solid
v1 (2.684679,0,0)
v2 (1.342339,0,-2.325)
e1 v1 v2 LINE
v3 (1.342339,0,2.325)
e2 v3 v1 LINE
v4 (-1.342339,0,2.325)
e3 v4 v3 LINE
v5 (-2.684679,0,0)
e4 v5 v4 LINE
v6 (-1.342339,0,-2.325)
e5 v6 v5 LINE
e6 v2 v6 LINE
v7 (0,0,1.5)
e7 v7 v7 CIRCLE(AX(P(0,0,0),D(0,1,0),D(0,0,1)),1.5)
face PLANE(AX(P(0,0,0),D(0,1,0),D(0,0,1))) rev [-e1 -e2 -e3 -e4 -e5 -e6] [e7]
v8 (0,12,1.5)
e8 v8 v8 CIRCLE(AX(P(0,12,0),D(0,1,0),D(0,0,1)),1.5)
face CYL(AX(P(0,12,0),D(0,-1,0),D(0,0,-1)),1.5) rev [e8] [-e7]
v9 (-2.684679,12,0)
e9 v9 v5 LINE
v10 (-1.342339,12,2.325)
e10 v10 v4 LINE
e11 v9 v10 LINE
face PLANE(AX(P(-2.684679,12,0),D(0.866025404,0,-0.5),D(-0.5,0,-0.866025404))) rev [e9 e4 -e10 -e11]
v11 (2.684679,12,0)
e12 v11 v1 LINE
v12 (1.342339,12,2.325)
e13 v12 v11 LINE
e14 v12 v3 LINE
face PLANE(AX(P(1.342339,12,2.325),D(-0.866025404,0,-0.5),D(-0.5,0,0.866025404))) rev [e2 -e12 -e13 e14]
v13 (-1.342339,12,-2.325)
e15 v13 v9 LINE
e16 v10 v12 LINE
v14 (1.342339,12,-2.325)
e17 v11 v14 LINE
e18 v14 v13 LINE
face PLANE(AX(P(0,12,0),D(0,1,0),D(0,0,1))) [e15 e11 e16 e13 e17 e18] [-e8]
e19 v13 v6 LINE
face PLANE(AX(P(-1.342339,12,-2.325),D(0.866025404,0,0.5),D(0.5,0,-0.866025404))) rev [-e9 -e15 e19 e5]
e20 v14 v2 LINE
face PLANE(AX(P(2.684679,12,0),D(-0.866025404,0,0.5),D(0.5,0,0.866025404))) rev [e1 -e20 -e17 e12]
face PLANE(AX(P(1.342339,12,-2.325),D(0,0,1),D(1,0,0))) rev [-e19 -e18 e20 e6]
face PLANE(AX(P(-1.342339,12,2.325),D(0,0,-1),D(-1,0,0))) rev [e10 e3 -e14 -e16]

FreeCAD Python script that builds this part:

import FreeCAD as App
import Part
import Sketcher

V = App.Vector
Q = App.Units.Quantity

doc = App.newDocument("Part")
body = doc.addObject("PartDesign::Body", "Body")

# Sketch on XZ plane
sketch1 = body.newObject("Sketcher::SketchObject", "Sketch")
sketch1.AttachmentSupport = (doc.getObject("XZ_Plane"), [""])
sketch1.MapMode = "FlatFace"
sketch1.addGeometry(Part.LineSegment(V(2.684679, 0, 0), V(1.342339, -2.325, 0)), False)
sketch1.addGeometry(Part.LineSegment(V(1.342339, -2.325, 0), V(-1.342339, -2.325, 0)), False)
sketch1.addGeometry(Part.LineSegment(V(-1.342339, -2.325, 0), V(-2.684679, 0, 0)), False)
sketch1.addGeometry(Part.LineSegment(V(-2.684679, 0, 0), V(-1.342339, 2.325, 0)), False)
sketch1.addGeometry(Part.LineSegment(V(-1.342339, 2.325, 0), V(1.342339, 2.325, 0)), False)
sketch1.addGeometry(Part.LineSegment(V(1.342339, 2.325, 0), V(2.684679, 0, 0)), False)
sketch1.addGeometry(Part.Circle(V(0, 0, 0), V(0, 0, 1), 1.5), False)
sketch1.addConstraint(Sketcher.Constraint("Coincident", 0, 2, 1, 1))
sketch1.addConstraint(Sketcher.Constraint("Coincident", 1, 2, 2, 1))
sketch1.addConstraint(Sketcher.Constraint("Coincident", 2, 2, 3, 1))
sketch1.addConstraint(Sketcher.Constraint("Coincident", 3, 2, 4, 1))
sketch1.addConstraint(Sketcher.Constraint("Coincident", 4, 2, 5, 1))
sketch1.addConstraint(Sketcher.Constraint("Coincident", 5, 2, 0, 1))
sketch1.addConstraint(Sketcher.Constraint("Horizontal", 1))
sketch1.addConstraint(Sketcher.Constraint("Horizontal", 4))
sketch1.addConstraint(Sketcher.Constraint("Coincident", 6, 3, -1, 1))
sketch1.addConstraint(Sketcher.Constraint("Symmetric", 0, 2, 3, 2, -1, 1))
sketch1.addConstraint(Sketcher.Constraint("Symmetric", 2, 2, 5, 2, -1, 1))
sketch1.addConstraint(Sketcher.Constraint("PointOnObject", 2, 2, -1))
sketch1.addConstraint(Sketcher.Constraint("Parallel", 2, 5))
sketch1.addConstraint(Sketcher.Constraint("Vertical", 1, 2, 3, 2))
sketch1.addConstraint(Sketcher.Constraint("Diameter", 6, Q("3 mm")))
sketch1.addConstraint(Sketcher.Constraint("Angle", 0, Q("-120 deg")))
sketch1.addConstraint(Sketcher.Constraint("DistanceY", 1, 2, 3, 2, Q("4.65 mm")))
sketch1.addConstraint(Sketcher.Constraint("DistanceX", 1, 2, 1, 1, Q("2.684679 mm")))
pad1 = body.newObject("PartDesign::Pad", "Pad")
pad1.Profile = sketch1
pad1.Length = 12
pad1.Reversed = True

doc.recompute()
